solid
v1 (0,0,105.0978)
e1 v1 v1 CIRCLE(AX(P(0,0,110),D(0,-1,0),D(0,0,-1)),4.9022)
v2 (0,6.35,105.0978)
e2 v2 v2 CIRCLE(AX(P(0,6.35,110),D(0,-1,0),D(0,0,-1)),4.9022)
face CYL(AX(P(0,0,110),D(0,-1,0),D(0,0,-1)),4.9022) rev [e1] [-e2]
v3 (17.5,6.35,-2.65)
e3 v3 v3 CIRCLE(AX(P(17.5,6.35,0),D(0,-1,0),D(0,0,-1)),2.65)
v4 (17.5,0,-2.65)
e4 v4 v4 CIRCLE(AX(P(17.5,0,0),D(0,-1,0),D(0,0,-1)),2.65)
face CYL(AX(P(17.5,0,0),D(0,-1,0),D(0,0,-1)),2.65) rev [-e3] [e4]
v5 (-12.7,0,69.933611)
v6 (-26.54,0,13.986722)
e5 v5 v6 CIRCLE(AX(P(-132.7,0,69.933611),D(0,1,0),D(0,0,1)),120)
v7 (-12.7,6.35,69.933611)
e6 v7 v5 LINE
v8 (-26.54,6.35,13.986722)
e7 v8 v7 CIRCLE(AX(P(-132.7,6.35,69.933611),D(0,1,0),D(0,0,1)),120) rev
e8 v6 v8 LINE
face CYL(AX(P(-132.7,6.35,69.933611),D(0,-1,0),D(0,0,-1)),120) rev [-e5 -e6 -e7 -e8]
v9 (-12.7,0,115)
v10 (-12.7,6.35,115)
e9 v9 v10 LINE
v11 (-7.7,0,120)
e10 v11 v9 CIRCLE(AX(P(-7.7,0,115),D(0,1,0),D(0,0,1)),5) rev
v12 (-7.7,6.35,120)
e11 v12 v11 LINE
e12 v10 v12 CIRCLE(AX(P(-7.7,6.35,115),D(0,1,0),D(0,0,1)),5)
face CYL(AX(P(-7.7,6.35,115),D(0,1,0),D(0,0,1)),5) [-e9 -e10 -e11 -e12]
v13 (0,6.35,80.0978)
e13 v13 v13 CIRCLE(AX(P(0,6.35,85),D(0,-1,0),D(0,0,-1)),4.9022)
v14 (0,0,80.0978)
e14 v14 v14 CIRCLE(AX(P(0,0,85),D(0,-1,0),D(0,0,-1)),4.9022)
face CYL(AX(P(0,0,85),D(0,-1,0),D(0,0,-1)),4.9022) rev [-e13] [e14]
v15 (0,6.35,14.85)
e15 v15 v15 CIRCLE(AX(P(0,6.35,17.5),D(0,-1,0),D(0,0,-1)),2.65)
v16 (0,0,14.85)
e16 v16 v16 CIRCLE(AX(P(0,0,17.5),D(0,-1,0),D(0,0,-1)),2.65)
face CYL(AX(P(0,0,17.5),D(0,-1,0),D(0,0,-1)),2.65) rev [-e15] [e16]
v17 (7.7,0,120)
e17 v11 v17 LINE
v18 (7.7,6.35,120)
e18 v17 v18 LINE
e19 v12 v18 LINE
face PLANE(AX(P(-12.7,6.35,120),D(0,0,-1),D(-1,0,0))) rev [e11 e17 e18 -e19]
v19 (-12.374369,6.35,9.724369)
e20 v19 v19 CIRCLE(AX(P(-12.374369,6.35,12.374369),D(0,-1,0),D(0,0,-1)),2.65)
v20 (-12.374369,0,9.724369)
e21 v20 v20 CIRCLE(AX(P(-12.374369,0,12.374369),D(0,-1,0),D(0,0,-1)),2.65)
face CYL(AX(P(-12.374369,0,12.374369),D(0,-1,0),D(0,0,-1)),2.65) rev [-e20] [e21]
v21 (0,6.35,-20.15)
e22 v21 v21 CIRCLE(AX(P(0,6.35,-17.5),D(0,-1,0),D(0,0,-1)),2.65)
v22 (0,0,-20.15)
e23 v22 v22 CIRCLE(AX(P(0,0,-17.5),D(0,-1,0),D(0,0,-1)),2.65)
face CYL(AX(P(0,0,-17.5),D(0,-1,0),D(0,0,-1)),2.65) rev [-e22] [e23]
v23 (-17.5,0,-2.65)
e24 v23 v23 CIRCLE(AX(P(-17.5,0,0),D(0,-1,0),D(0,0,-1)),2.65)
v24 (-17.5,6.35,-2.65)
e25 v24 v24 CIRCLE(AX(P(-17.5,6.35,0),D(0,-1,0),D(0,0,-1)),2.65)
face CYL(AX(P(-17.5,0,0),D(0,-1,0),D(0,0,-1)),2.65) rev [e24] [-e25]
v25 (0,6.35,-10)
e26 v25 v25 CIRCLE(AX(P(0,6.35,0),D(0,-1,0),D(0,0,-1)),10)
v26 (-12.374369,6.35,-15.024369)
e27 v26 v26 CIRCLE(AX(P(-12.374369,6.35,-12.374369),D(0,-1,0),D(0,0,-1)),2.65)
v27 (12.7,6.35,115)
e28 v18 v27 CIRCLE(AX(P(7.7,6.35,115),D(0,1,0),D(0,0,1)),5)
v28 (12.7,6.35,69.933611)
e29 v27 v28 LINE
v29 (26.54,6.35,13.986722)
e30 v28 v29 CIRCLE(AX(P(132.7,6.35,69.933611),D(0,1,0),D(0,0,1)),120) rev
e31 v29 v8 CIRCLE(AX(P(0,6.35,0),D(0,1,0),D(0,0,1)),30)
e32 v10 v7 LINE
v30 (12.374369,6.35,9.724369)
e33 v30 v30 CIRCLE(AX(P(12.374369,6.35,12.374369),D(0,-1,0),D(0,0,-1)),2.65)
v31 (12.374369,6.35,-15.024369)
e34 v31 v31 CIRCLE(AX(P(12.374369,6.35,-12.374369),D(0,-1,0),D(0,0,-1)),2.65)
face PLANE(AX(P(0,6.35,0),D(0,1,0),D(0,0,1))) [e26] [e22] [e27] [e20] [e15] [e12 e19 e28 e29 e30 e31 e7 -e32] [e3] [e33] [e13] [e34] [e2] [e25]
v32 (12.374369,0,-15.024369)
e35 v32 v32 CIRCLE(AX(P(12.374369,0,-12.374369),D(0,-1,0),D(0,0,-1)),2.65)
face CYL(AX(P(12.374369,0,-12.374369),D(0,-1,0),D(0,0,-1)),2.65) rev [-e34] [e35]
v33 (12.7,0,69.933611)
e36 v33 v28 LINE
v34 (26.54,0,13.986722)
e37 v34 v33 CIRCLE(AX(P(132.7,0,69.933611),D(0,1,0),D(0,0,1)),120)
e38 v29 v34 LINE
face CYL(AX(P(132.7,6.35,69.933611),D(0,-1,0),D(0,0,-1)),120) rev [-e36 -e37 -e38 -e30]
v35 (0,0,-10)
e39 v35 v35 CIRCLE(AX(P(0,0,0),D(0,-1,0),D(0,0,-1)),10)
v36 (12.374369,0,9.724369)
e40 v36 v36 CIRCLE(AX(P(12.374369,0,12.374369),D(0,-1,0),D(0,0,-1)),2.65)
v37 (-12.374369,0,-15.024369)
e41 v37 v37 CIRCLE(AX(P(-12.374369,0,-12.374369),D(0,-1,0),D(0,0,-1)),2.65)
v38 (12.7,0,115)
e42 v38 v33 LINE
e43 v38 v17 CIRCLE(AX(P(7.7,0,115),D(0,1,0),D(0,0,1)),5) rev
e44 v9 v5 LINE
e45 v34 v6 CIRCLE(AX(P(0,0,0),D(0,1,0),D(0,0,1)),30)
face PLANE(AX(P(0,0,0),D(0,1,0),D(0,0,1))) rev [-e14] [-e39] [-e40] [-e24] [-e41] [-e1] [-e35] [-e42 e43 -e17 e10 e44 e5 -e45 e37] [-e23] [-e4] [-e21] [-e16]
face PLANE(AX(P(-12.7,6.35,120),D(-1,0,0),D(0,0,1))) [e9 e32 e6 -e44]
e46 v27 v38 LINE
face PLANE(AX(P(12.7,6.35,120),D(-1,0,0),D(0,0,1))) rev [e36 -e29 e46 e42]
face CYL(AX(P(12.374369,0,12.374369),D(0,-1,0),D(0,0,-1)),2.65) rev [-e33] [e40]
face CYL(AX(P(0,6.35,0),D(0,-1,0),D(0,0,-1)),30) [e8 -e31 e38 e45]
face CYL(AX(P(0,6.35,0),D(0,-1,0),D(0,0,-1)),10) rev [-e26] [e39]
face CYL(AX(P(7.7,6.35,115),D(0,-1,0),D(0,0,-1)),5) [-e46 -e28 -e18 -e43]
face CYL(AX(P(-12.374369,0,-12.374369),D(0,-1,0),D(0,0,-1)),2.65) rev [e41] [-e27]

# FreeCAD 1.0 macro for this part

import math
import FreeCAD as App
import Part
import Sketcher
from FreeCAD import Vector


def edges_at(feature, points):
    """Names of the edges that pass closest to the given points."""
    edges = feature.Shape.Edges
    near = lambda p: min(range(len(edges)), key=lambda i: edges[i].distToShape(Part.Vertex(*p))[0])
    return sorted({f"Edge{near(p) + 1}" for p in points})

doc = App.newDocument("Part")
body = doc.addObject("PartDesign::Body", "Body")

# Sketch on XZ plane
sketch1 = body.newObject("Sketcher::SketchObject", "Sketch")
sketch1.AttachmentSupport = (doc.getObject("XZ_Plane"), [""])
sketch1.MapMode = "FlatFace"
sketch1.addGeometry(Part.LineSegment(Vector(-12.7, 120, 0), Vector(12.7, 120, 0)), False)
sketch1.addGeometry(Part.LineSegment(Vector(12.7, 120, 0), Vector(12.7, 27.17922, 0)), False)
sketch1.addGeometry(Part.ArcOfCircle(Part.Circle(Vector(0, 0, 0), Vector(0, 0, 1), 30), math.radians(115.045214), math.radians(424.954786)), False)
sketch1.addGeometry(Part.LineSegment(Vector(-12.7, 27.17922, 0), Vector(-12.7, 120, 0)), False)
sketch1.addConstraint(Sketcher.Constraint("Coincident", 0, 2, 1, 1))
sketch1.addConstraint(Sketcher.Constraint("Coincident", 1, 2, 2, 2))
sketch1.addConstraint(Sketcher.Constraint("Coincident", 2, 1, 3, 1))
sketch1.addConstraint(Sketcher.Constraint("Coincident", 3, 2, 0, 1))
sketch1.addConstraint(Sketcher.Constraint("Horizontal", 0))
sketch1.addConstraint(Sketcher.Constraint("Vertical", 1))
sketch1.addConstraint(Sketcher.Constraint("Vertical", 3))
sketch1.addConstraint(Sketcher.Constraint("Coincident", 2, 3, -1, 1))
sketch1.addConstraint(Sketcher.Constraint("Horizontal", 1, 2, 2, 1))
sketch1.addConstraint(Sketcher.Constraint("Radius", 2, 30.0))
sketch1.addConstraint(Sketcher.Constraint("DistanceX", 0, 1, 0, 2, 25.4))
sketch1.addConstraint(Sketcher.Constraint("DistanceY", -1, 1, 0, 2, 120.0))
pad1 = body.newObject("PartDesign::Pad", "Pad")
pad1.Profile = sketch1
pad1.Length = 6.35
pad1.Reversed = True

# Sketch on XZ plane
sketch2 = body.newObject("Sketcher::SketchObject", "Sketch001")
sketch2.AttachmentSupport = (doc.getObject("XZ_Plane"), [""])
sketch2.MapMode = "FlatFace"
sketch2.addGeometry(Part.Circle(Vector(0, -17.5, 0), Vector(0, 0, 1), 2.65), False)
sketch2.addGeometry(Part.Circle(Vector(-12.374369, -12.374369, 0), Vector(0, 0, 1), 2.65), False)
sketch2.addGeometry(Part.Circle(Vector(-17.5, 0, 0), Vector(0, 0, 1), 2.65), False)
sketch2.addGeometry(Part.Circle(Vector(-12.374369, 12.374369, 0), Vector(0, 0, 1), 2.65), False)
sketch2.addGeometry(Part.Circle(Vector(0, 17.5, 0), Vector(0, 0, 1), 2.65), False)
sketch2.addGeometry(Part.Circle(Vector(12.374369, 12.374369, 0), Vector(0, 0, 1), 2.65), False)
sketch2.addGeometry(Part.Circle(Vector(17.5, 0, 0), Vector(0, 0, 1), 2.65), False)
sketch2.addGeometry(Part.Circle(Vector(12.374369, -12.374369, 0), Vector(0, 0, 1), 2.65), False)
sketch2.addConstraint(Sketcher.Constraint("Equal", 0, 1))
sketch2.addConstraint(Sketcher.Constraint("Equal", 1, 2))
sketch2.addConstraint(Sketcher.Constraint("Equal", 2, 3))
sketch2.addConstraint(Sketcher.Constraint("Equal", 3, 4))
sketch2.addConstraint(Sketcher.Constraint("Equal", 4, 5))
sketch2.addConstraint(Sketcher.Constraint("Equal", 5, 6))
sketch2.addConstraint(Sketcher.Constraint("Equal", 6, 7))
sketch2.addConstraint(Sketcher.Constraint("Symmetric", 0, 3, 4, 3, -1, 1))
sketch2.addConstraint(Sketcher.Constraint("Symmetric", 1, 3, 5, 3, -1, 1))
sketch2.addConstraint(Sketcher.Constraint("Symmetric", 2, 3, 6, 3, -1, 1))
sketch2.addConstraint(Sketcher.Constraint("Symmetric", 3, 3, 7, 3, -1, 1))
sketch2.addConstraint(Sketcher.Constraint("Symmetric", 3, 3, 5, 3, -2))
sketch2.addConstraint(Sketcher.Constraint("PointOnObject", 0, 3, -2))
sketch2.addConstraint(Sketcher.Constraint("PointOnObject", 2, 3, -1))
sketch2.addConstraint(Sketcher.Constraint("Diameter", 0, 5.3))
sketch2.addConstraint(Sketcher.Constraint("DistanceY", 0, 3, 4, 3, 35.0))
sketch2.addConstraint(Sketcher.Constraint("DistanceX", 2, 3, -1, 1, 17.5))
sketch2.addConstraint(Sketcher.Constraint("DistanceX", 1, 3, -1, 1, 12.374369))
sketch2.addConstraint(Sketcher.Constraint("DistanceY", 1, 3, -1, 1, 12.374369))
doc.recompute()
hole = body.newObject("PartDesign::Hole", "Hole")
hole.Profile = sketch2
hole.ThreadType = "None"
hole.Diameter = 5.3
hole.DepthType = "ThroughAll"

# Sketch on XZ plane
sketch3 = body.newObject("Sketcher::SketchObject", "Sketch002")
sketch3.AttachmentSupport = (doc.getObject("XZ_Plane"), [""])
sketch3.MapMode = "FlatFace"
sketch3.addGeometry(Part.Circle(Vector(0, 0, 0), Vector(0, 0, 1), 10), False)
sketch3.addConstraint(Sketcher.Constraint("Coincident", 0, 3, -1, 1))
sketch3.addConstraint(Sketcher.Constraint("Diameter", 0, 20.0))
pocket1 = body.newObject("PartDesign::Pocket", "Pocket")
pocket1.Profile = sketch3
pocket1.Type = "ThroughAll"

# Sketch on XZ plane
sketch4 = body.newObject("Sketcher::SketchObject", "Sketch003")
sketch4.AttachmentSupport = (doc.getObject("XZ_Plane"), [""])
sketch4.MapMode = "FlatFace"
sketch4.addGeometry(Part.Circle(Vector(0, 85, 0), Vector(0, 0, 1), 4.9022), False)
sketch4.addGeometry(Part.Circle(Vector(0, 110, 0), Vector(0, 0, 1), 4.9022), False)
sketch4.addConstraint(Sketcher.Constraint("Equal", 0, 1))
sketch4.addConstraint(Sketcher.Constraint("PointOnObject", 0, 3, -2))
sketch4.addConstraint(Sketcher.Constraint("PointOnObject", 1, 3, -2))
sketch4.addConstraint(Sketcher.Constraint("DistanceY", -1, 1, 0, 3, 85.0))
sketch4.addConstraint(Sketcher.Constraint("DistanceY", -1, 1, 1, 3, 110.0))
sketch4.addConstraint(Sketcher.Constraint("Diameter", 0, 9.8044))
doc.recompute()
hole2 = body.newObject("PartDesign::Hole", "Hole001")
hole2.Profile = sketch4
hole2.ThreadType = "None"
hole2.Diameter = 9.8044
hole2.DepthType = "ThroughAll"
doc.recompute()

fillet = body.newObject("PartDesign::Fillet", "Fillet")
fillet.Base = (hole2, edges_at(hole2, [(-12.7, 3.175, 27.179), (12.7, 3.175, 27.179)]))
fillet.Radius = 120
doc.recompute()

fillet2 = body.newObject("PartDesign::Fillet", "Fillet001")
fillet2.Base = (fillet, edges_at(fillet, [(12.7, 3.175, 120), (-12.7, 3.175, 120)]))
fillet2.Radius = 5

doc.recompute()
